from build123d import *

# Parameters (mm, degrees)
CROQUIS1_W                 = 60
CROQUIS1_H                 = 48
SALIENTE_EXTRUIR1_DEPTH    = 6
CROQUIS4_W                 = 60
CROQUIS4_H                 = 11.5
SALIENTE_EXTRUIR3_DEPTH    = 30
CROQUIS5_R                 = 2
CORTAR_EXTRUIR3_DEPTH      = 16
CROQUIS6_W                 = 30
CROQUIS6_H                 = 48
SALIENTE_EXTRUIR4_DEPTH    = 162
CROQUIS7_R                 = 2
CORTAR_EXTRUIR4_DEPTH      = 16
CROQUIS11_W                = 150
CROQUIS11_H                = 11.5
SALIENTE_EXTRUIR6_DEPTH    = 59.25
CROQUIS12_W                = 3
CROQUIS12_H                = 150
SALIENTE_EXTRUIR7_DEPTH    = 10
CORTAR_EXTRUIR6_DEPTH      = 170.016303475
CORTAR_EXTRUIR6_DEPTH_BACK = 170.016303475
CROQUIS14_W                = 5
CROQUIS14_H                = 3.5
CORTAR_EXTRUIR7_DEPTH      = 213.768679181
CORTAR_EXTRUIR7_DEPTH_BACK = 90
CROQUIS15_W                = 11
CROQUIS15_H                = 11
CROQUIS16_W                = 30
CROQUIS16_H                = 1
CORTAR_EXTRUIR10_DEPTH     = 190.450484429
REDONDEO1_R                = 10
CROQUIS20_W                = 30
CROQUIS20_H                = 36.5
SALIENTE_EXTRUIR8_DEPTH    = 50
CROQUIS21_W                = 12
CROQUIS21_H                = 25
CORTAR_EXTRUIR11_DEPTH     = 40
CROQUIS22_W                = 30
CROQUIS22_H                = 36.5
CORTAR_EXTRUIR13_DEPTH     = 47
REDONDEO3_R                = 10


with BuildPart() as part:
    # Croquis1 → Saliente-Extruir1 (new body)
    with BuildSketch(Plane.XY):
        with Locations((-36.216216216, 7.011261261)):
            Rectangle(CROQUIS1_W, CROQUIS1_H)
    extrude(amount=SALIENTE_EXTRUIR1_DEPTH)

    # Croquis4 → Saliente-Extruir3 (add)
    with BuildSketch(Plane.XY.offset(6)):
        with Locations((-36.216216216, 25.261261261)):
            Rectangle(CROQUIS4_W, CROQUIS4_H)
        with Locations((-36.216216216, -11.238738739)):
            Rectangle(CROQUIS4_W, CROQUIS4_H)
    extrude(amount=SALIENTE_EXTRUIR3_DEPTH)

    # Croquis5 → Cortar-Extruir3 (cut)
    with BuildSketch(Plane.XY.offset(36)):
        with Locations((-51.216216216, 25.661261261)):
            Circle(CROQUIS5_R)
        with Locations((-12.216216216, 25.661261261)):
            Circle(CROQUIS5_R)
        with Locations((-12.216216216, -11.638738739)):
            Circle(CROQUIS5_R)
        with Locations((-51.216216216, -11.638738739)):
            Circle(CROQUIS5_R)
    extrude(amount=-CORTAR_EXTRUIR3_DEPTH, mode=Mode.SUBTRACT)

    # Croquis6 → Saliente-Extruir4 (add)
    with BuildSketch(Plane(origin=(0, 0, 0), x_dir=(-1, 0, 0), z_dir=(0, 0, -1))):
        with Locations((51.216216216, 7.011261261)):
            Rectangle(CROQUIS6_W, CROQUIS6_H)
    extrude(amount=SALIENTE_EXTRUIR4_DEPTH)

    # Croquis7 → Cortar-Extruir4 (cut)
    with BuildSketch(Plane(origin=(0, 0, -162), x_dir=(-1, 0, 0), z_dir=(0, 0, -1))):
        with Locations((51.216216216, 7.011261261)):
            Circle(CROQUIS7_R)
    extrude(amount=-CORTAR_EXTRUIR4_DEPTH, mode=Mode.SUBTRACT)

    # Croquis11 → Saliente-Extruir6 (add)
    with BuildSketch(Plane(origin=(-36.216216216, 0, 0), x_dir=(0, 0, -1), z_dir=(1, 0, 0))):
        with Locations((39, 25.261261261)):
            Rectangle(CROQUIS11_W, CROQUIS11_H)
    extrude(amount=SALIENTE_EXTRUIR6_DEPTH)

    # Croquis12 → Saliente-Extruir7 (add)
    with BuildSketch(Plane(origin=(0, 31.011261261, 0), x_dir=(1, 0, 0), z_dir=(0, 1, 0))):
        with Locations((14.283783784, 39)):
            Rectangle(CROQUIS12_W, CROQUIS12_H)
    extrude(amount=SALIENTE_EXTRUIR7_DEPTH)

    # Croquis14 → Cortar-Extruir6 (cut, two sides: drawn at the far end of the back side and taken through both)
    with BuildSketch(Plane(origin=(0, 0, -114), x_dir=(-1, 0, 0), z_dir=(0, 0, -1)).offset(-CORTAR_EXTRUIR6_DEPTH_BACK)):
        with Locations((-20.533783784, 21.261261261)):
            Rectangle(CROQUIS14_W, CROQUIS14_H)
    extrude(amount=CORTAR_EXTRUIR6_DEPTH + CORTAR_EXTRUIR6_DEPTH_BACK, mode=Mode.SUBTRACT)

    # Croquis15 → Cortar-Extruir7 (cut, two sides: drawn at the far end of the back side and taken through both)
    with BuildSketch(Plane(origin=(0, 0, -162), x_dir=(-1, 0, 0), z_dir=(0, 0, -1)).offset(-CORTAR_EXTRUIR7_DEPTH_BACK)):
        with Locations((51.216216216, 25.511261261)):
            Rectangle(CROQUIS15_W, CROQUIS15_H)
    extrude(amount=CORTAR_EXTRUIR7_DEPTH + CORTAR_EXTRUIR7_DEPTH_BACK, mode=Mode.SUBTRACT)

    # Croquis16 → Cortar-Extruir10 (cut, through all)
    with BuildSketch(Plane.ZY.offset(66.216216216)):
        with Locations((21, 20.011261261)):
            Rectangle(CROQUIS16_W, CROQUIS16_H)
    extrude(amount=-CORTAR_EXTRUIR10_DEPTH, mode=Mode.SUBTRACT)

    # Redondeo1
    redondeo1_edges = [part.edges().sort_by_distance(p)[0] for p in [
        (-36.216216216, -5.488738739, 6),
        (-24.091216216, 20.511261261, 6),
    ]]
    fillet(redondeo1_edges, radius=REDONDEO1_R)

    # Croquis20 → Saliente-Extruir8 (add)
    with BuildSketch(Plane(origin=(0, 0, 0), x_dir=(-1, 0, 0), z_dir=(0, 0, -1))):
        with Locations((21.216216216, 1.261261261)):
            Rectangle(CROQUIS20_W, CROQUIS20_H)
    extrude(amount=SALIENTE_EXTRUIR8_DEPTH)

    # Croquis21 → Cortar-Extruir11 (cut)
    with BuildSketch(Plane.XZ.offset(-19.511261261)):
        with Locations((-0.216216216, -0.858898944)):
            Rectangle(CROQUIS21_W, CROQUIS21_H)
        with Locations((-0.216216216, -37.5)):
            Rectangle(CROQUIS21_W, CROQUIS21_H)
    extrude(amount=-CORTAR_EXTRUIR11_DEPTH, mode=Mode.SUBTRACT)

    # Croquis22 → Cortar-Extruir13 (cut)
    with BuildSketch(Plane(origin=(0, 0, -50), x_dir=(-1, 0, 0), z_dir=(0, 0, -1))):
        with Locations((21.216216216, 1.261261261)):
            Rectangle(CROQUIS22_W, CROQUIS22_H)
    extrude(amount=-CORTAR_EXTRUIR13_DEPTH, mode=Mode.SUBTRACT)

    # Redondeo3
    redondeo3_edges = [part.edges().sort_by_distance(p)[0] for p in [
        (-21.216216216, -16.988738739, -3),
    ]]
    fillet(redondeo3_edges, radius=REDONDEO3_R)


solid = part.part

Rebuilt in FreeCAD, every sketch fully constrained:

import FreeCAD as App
import Part
import Sketcher
Q = App.Units.Quantity


def edges_at(feature, points):
    """Names of the edges that pass closest to the given points."""
    edges = feature.Shape.Edges
    near = lambda p: min(range(len(edges)), key=lambda i: edges[i].distToShape(Part.Vertex(*p))[0])
    return sorted({f"Edge{near(p) + 1}" for p in points})


def add_polygon(sketch, points):
    """Adds a closed chain of lines whose ends are joined by coincident constraints."""
    first, n = sketch.GeometryCount, len(points)
    for a, b in zip(points, points[1:] + points[:1]):
        sketch.addGeometry(Part.LineSegment(App.Vector(*a, 0), App.Vector(*b, 0)), False)
    for i in range(n):
        sketch.addConstraint(Sketcher.Constraint("Coincident", first + i, 2, first + (i + 1) % n, 1))

doc = App.newDocument("Part")
params = doc.addObject("Spreadsheet::Sheet", "Params")
for row, (alias, value) in enumerate([
    ("sketch1_width", "60 mm"),
    ("sketch1_height", "48 mm"),
    ("pad1_length", "6 mm"),
    ("sketch2_width", "60 mm"),
    ("sketch2_height", "11.5 mm"),
    ("pad2_length", "30 mm"),
    ("sketch3_diameter", "4 mm"),
    ("pocket1_length", "16 mm"),
    ("sketch4_width", "30 mm"),
    ("sketch4_height", "48 mm"),
    ("pad3_length", "162 mm"),
    ("sketch5_diameter", "4 mm"),
    ("pocket2_length", "16 mm"),
    ("sketch6_height", "150 mm"),
    ("sketch6_width", "11.5 mm"),
    ("pad4_length", "59.25 mm"),
    ("sketch7_width", "3 mm"),
    ("sketch7_height", "150 mm"),
    ("pad5_length", "10 mm"),
    ("sketch8_width", "5 mm"),
    ("sketch8_height", "3.5 mm"),
    ("sketch9_width", "11 mm"),
    ("pocket4_length", "213.768679 mm"),
    ("pocket4_length2", "90 mm"),
    ("sketch10_width", "1 mm"),
    ("sketch10_height", "30 mm"),
    ("fillet_radius", "10 mm"),
    ("sketch11_width", "30 mm"),
    ("sketch11_height", "36.5 mm"),
    ("pad6_length", "50 mm"),
    ("sketch12_width", "12 mm"),
    ("sketch12_height", "25 mm"),
    ("pocket6_length", "40 mm"),
    ("sketch13_width", "30 mm"),
    ("sketch13_height", "36.5 mm"),
    ("pocket7_length", "47 mm"),
    ("fillet2_radius", "10 mm"),
], start=1):
    params.set(f"A{row}", alias)
    params.set(f"B{row}", "=" + value)
    params.setAlias(f"B{row}", alias)

body = doc.addObject("PartDesign::Body", "Body")

# Sketch on XY plane
sketch1 = body.newObject("Sketcher::SketchObject", "Sketch")
sketch1.AttachmentSupport = (doc.getObject("XY_Plane"), [""])
sketch1.MapMode = "FlatFace"
add_polygon(sketch1, [(-66.216216, 31.011261), (-66.216216, -16.988739), (-6.216216, -16.988739), (-6.216216, 31.011261)])  # lines 0-3
sketch1.addConstraint(Sketcher.Constraint("Vertical", 0))
sketch1.addConstraint(Sketcher.Constraint("Horizontal", 1))
sketch1.addConstraint(Sketcher.Constraint("Vertical", 2))
sketch1.addConstraint(Sketcher.Constraint("Horizontal", 3))
sketch1.addConstraint(Sketcher.Constraint("DistanceX", 1, 1, 1, 2, Q("60 mm")))
sketch1.addConstraint(Sketcher.Constraint("DistanceY", 0, 2, 0, 1, Q("48 mm")))
sketch1.addConstraint(Sketcher.Constraint("DistanceY", 0, 2, -1, 1, Q("16.988739 mm")))
sketch1.addConstraint(Sketcher.Constraint("DistanceX", 0, 2, -1, 1, Q("66.216216 mm")))
sketch1.setExpression("Constraints[8]", "Params.sketch1_width")
sketch1.setExpression("Constraints[9]", "Params.sketch1_height")
pad1 = body.newObject("PartDesign::Pad", "Pad")
pad1.Profile = sketch1
pad1.setExpression("Length", "Params.pad1_length")

# Sketch on XY plane
sketch2 = body.newObject("Sketcher::SketchObject", "Sketch001")
sketch2.AttachmentSupport = (doc.getObject("XY_Plane"), [""])
sketch2.MapMode = "FlatFace"
sketch2.AttachmentOffset = App.Placement(App.Vector(0, 0, 6), App.Rotation())
add_polygon(sketch2, [(-66.216216, 31.011261), (-66.216216, 19.511261), (-6.216216, 19.511261), (-6.216216, 31.011261)])  # lines 0-3
add_polygon(sketch2, [(-66.216216, -5.488739), (-66.216216, -16.988739), (-6.216216, -16.988739), (-6.216216, -5.488739)])  # lines 4-7
sketch2.addConstraint(Sketcher.Constraint("Vertical", 0))
sketch2.addConstraint(Sketcher.Constraint("Horizontal", 1))
sketch2.addConstraint(Sketcher.Constraint("Vertical", 2))
sketch2.addConstraint(Sketcher.Constraint("Horizontal", 3))
sketch2.addConstraint(Sketcher.Constraint("Vertical", 4))
sketch2.addConstraint(Sketcher.Constraint("Horizontal", 5))
sketch2.addConstraint(Sketcher.Constraint("Vertical", 6))
sketch2.addConstraint(Sketcher.Constraint("Horizontal", 7))
sketch2.addConstraint(Sketcher.Constraint("Vertical", 3, 2, 4, 2))
sketch2.addConstraint(Sketcher.Constraint("Vertical", 2, 2, 5, 2))
sketch2.addConstraint(Sketcher.Constraint("Equal", 2, 4))
sketch2.addConstraint(Sketcher.Constraint("DistanceX", 1, 1, 1, 2, Q("60 mm")))
sketch2.addConstraint(Sketcher.Constraint("DistanceY", 0, 2, 0, 1, Q("11.5 mm")))
sketch2.addConstraint(Sketcher.Constraint("DistanceY", 4, 2, 3, 2, Q("48 mm")))
sketch2.addConstraint(Sketcher.Constraint("DistanceY", -1, 1, 0, 2, Q("19.511261 mm")))
sketch2.addConstraint(Sketcher.Constraint("DistanceX", 0, 2, -1, 1, Q("66.216216 mm")))
sketch2.setExpression("Constraints[19]", "Params.sketch2_width")
sketch2.setExpression("Constraints[20]", "Params.sketch2_height")
pad2 = body.newObject("PartDesign::Pad", "Pad001")
pad2.Profile = sketch2
pad2.setExpression("Length", "Params.pad2_length")

# Sketch on XY plane
sketch3 = body.newObject("Sketcher::SketchObject", "Sketch002")
sketch3.AttachmentSupport = (doc.getObject("XY_Plane"), [""])
sketch3.MapMode = "FlatFace"
sketch3.AttachmentOffset = App.Placement(App.Vector(0, 0, 36), App.Rotation())
sketch3.addGeometry(Part.Circle(App.Vector(-51.216216, 25.661261, 0), App.Vector(0, 0, 1), 2), False)
sketch3.addGeometry(Part.Circle(App.Vector(-12.216216, 25.661261, 0), App.Vector(0, 0, 1), 2), False)
sketch3.addGeometry(Part.Circle(App.Vector(-12.216216, -11.638739, 0), App.Vector(0, 0, 1), 2), False)
sketch3.addGeometry(Part.Circle(App.Vector(-51.216216, -11.638739, 0), App.Vector(0, 0, 1), 2), False)
sketch3.addConstraint(Sketcher.Constraint("Equal", 0, 1))
sketch3.addConstraint(Sketcher.Constraint("Equal", 1, 2))
sketch3.addConstraint(Sketcher.Constraint("Equal", 2, 3))
sketch3.addConstraint(Sketcher.Constraint("Horizontal", 0, 3, 1, 3))
sketch3.addConstraint(Sketcher.Constraint("Horizontal", 2, 3, 3, 3))
sketch3.addConstraint(Sketcher.Constraint("Vertical", 1, 3, 2, 3))
sketch3.addConstraint(Sketcher.Constraint("Vertical", 0, 3, 3, 3))
sketch3.addConstraint(Sketcher.Constraint("Diameter", 0, Q("4 mm")))
sketch3.addConstraint(Sketcher.Constraint("DistanceX", 0, 3, 1, 3, Q("39 mm")))
sketch3.addConstraint(Sketcher.Constraint("DistanceY", 2, 3, 1, 3, Q("37.3 mm")))
sketch3.addConstraint(Sketcher.Constraint("DistanceY", -1, 1, 0, 3, Q("25.661261 mm")))
sketch3.addConstraint(Sketcher.Constraint("DistanceX", 0, 3, -1, 1, Q("51.216216 mm")))
sketch3.setExpression("Constraints[7]", "Params.sketch3_diameter")
pocket1 = body.newObject("PartDesign::Pocket", "Pocket")
pocket1.Profile = sketch3
pocket1.setExpression("Length", "Params.pocket1_length")

# Sketch on XY plane
sketch4 = body.newObject("Sketcher::SketchObject", "Sketch003")
sketch4.AttachmentSupport = (doc.getObject("XY_Plane"), [""])
sketch4.MapMode = "FlatFace"
add_polygon(sketch4, [(-36.216216, 31.011261), (-36.216216, -16.988739), (-66.216216, -16.988739), (-66.216216, 31.011261)])  # lines 0-3
sketch4.addConstraint(Sketcher.Constraint("Vertical", 0))
sketch4.addConstraint(Sketcher.Constraint("Horizontal", 1))
sketch4.addConstraint(Sketcher.Constraint("Vertical", 2))
sketch4.addConstraint(Sketcher.Constraint("Horizontal", 3))
sketch4.addConstraint(Sketcher.Constraint("DistanceX", 1, 2, 1, 1, Q("30 mm")))
sketch4.addConstraint(Sketcher.Constraint("DistanceY", 0, 2, 0, 1, Q("48 mm")))
sketch4.addConstraint(Sketcher.Constraint("DistanceY", 0, 2, -1, 1, Q("16.988739 mm")))
sketch4.addConstraint(Sketcher.Constraint("DistanceX", 0, 2, -1, 1, Q("36.216216 mm")))
sketch4.setExpression("Constraints[8]", "Params.sketch4_width")
sketch4.setExpression("Constraints[9]", "Params.sketch4_height")
pad3 = body.newObject("PartDesign::Pad", "Pad002")
pad3.Profile = sketch4
pad3.setExpression("Length", "Params.pad3_length")
pad3.Reversed = True

# Sketch on XY plane
sketch5 = body.newObject("Sketcher::SketchObject", "Sketch004")
sketch5.AttachmentSupport = (doc.getObject("XY_Plane"), [""])
sketch5.MapMode = "FlatFace"
sketch5.AttachmentOffset = App.Placement(App.Vector(0, 0, -162), App.Rotation())
sketch5.addGeometry(Part.Circle(App.Vector(-51.216216, 7.011261, 0), App.Vector(0, 0, 1), 2), False)
sketch5.addConstraint(Sketcher.Constraint("Diameter", 0, Q("4 mm")))
sketch5.addConstraint(Sketcher.Constraint("DistanceY", -1, 1, 0, 3, Q("7.011261 mm")))
sketch5.addConstraint(Sketcher.Constraint("DistanceX", 0, 3, -1, 1, Q("51.216216 mm")))
sketch5.setExpression("Constraints[0]", "Params.sketch5_diameter")
pocket2 = body.newObject("PartDesign::Pocket", "Pocket001")
pocket2.Profile = sketch5
pocket2.setExpression("Length", "Params.pocket2_length")
pocket2.Reversed = True

# Sketch on YZ plane
sketch6 = body.newObject("Sketcher::SketchObject", "Sketch005")
sketch6.AttachmentSupport = (doc.getObject("YZ_Plane"), [""])
sketch6.MapMode = "FlatFace"
sketch6.AttachmentOffset = App.Placement(App.Vector(0, 0, -36.216216), App.Rotation())
add_polygon(sketch6, [(31.011261, 36), (19.511261, 36), (19.511261, -114), (31.011261, -114)])  # lines 0-3
sketch6.addConstraint(Sketcher.Constraint("Horizontal", 0))
sketch6.addConstraint(Sketcher.Constraint("Vertical", 1))
sketch6.addConstraint(Sketcher.Constraint("Horizontal", 2))
sketch6.addConstraint(Sketcher.Constraint("Vertical", 3))
sketch6.addConstraint(Sketcher.Constraint("DistanceY", 1, 2, 1, 1, Q("150 mm")))
sketch6.addConstraint(Sketcher.Constraint("DistanceX", 0, 2, 0, 1, Q("11.5 mm")))
sketch6.addConstraint(Sketcher.Constraint("DistanceY", -1, 1, 0, 2, Q("36 mm")))
sketch6.addConstraint(Sketcher.Constraint("DistanceX", -1, 1, 0, 2, Q("19.511261 mm")))
sketch6.setExpression("Constraints[8]", "Params.sketch6_height")
sketch6.setExpression("Constraints[9]", "Params.sketch6_width")
pad4 = body.newObject("PartDesign::Pad", "Pad003")
pad4.Profile = sketch6
pad4.setExpression("Length", "Params.pad4_length")

# Sketch on XZ plane
sketch7 = body.newObject("Sketcher::SketchObject", "Sketch006")
sketch7.AttachmentSupport = (doc.getObject("XZ_Plane"), [""])
sketch7.MapMode = "FlatFace"
sketch7.AttachmentOffset = App.Placement(App.Vector(0, 0, -31.011261), App.Rotation())
add_polygon(sketch7, [(12.783784, -114), (12.783784, 36), (15.783784, 36), (15.783784, -114)])  # lines 0-3
sketch7.addConstraint(Sketcher.Constraint("Vertical", 0))
sketch7.addConstraint(Sketcher.Constraint("Horizontal", 1))
sketch7.addConstraint(Sketcher.Constraint("Vertical", 2))
sketch7.addConstraint(Sketcher.Constraint("Horizontal", 3))
sketch7.addConstraint(Sketcher.Constraint("DistanceX", 1, 1, 1, 2, Q("3 mm")))
sketch7.addConstraint(Sketcher.Constraint("DistanceY", 0, 1, 0, 2, Q("150 mm")))
sketch7.addConstraint(Sketcher.Constraint("DistanceY", -1, 1, 0, 2, Q("36 mm")))
sketch7.addConstraint(Sketcher.Constraint("DistanceX", -1, 1, 0, 2, Q("12.783784 mm")))
sketch7.setExpression("Constraints[8]", "Params.sketch7_width")
sketch7.setExpression("Constraints[9]", "Params.sketch7_height")
pad5 = body.newObject("PartDesign::Pad", "Pad004")
pad5.Profile = sketch7
pad5.setExpression("Length", "Params.pad5_length")
pad5.Reversed = True

# Sketch on XY plane
sketch8 = body.newObject("Sketcher::SketchObject", "Sketch007")
sketch8.AttachmentSupport = (doc.getObject("XY_Plane"), [""])
sketch8.MapMode = "FlatFace"
sketch8.AttachmentOffset = App.Placement(App.Vector(0, 0, -114), App.Rotation())
add_polygon(sketch8, [(23.033784, 23.011261), (23.033784, 19.511261), (18.033784, 19.511261), (18.033784, 23.011261)])  # lines 0-3
sketch8.addConstraint(Sketcher.Constraint("Vertical", 0))
sketch8.addConstraint(Sketcher.Constraint("Horizontal", 1))
sketch8.addConstraint(Sketcher.Constraint("Vertical", 2))
sketch8.addConstraint(Sketcher.Constraint("Horizontal", 3))
sketch8.addConstraint(Sketcher.Constraint("DistanceX", 1, 2, 1, 1, Q("5 mm")))
sketch8.addConstraint(Sketcher.Constraint("DistanceY", 0, 2, 0, 1, Q("3.5 mm")))
sketch8.addConstraint(Sketcher.Constraint("DistanceY", -1, 1, 0, 2, Q("19.511261 mm")))
sketch8.addConstraint(Sketcher.Constraint("DistanceX", -1, 1, 0, 2, Q("23.033784 mm")))
sketch8.setExpression("Constraints[8]", "Params.sketch8_width")
sketch8.setExpression("Constraints[9]", "Params.sketch8_height")
pocket3 = body.newObject("PartDesign::Pocket", "Pocket002")
pocket3.Profile = sketch8
pocket3.Type = "ThroughAll"
pocket3.Midplane = True

# Sketch on XY plane
sketch9 = body.newObject("Sketcher::SketchObject", "Sketch008")
sketch9.AttachmentSupport = (doc.getObject("XY_Plane"), [""])
sketch9.MapMode = "FlatFace"
sketch9.AttachmentOffset = App.Placement(App.Vector(0, 0, -162), App.Rotation())
add_polygon(sketch9, [(-45.716216, 31.011261), (-45.716216, 20.011261), (-56.716216, 20.011261), (-56.716216, 31.011261)])  # lines 0-3
sketch9.addConstraint(Sketcher.Constraint("Vertical", 0))
sketch9.addConstraint(Sketcher.Constraint("Horizontal", 1))
sketch9.addConstraint(Sketcher.Constraint("Vertical", 2))
sketch9.addConstraint(Sketcher.Constraint("Horizontal", 3))
sketch9.addConstraint(Sketcher.Constraint("Equal", 3, 0))
sketch9.addConstraint(Sketcher.Constraint("DistanceX", 1, 2, 1, 1, Q("11 mm")))
sketch9.addConstraint(Sketcher.Constraint("DistanceY", -1, 1, 0, 2, Q("20.011261 mm")))
sketch9.addConstraint(Sketcher.Constraint("DistanceX", 0, 2, -1, 1, Q("45.716216 mm")))
sketch9.setExpression("Constraints[9]", "Params.sketch9_width")
pocket4 = body.newObject("PartDesign::Pocket", "Pocket003")
pocket4.Profile = sketch9
pocket4.Type = "TwoLengths"
pocket4.setExpression("Length", "Params.pocket4_length")
pocket4.setExpression("Length2", "Params.pocket4_length2")

# Sketch on YZ plane
sketch10 = body.newObject("Sketcher::SketchObject", "Sketch009")
sketch10.AttachmentSupport = (doc.getObject("YZ_Plane"), [""])
sketch10.MapMode = "FlatFace"
sketch10.AttachmentOffset = App.Placement(App.Vector(0, 0, -66.216216), App.Rotation())
add_polygon(sketch10, [(20.511261, 6), (19.511261, 6), (19.511261, 36), (20.511261, 36)])  # lines 0-3
sketch10.addConstraint(Sketcher.Constraint("Horizontal", 0))
sketch10.addConstraint(Sketcher.Constraint("Vertical", 1))
sketch10.addConstraint(Sketcher.Constraint("Horizontal", 2))
sketch10.addConstraint(Sketcher.Constraint("Vertical", 3))
sketch10.addConstraint(Sketcher.Constraint("DistanceX", 0, 2, 0, 1, Q("1 mm")))
sketch10.addConstraint(Sketcher.Constraint("DistanceY", 1, 1, 1, 2, Q("30 mm")))
sketch10.addConstraint(Sketcher.Constraint("DistanceY", -1, 1, 0, 2, Q("6 mm")))
sketch10.addConstraint(Sketcher.Constraint("DistanceX", -1, 1, 0, 2, Q("19.511261 mm")))
sketch10.setExpression("Constraints[8]", "Params.sketch10_width")
sketch10.setExpression("Constraints[9]", "Params.sketch10_height")
pocket5 = body.newObject("PartDesign::Pocket", "Pocket004")
pocket5.Profile = sketch10
pocket5.Type = "ThroughAll"
pocket5.Reversed = True
doc.recompute()

fillet = body.newObject("PartDesign::Fillet", "Fillet")
fillet.Base = (pocket5, edges_at(pocket5, [(-36.216, -5.489, 6), (-24.091, 20.511, 6)]))
fillet.setExpression("Radius", "Params.fillet_radius")

# Sketch on XY plane
sketch11 = body.newObject("Sketcher::SketchObject", "Sketch010")
sketch11.AttachmentSupport = (doc.getObject("XY_Plane"), [""])
sketch11.MapMode = "FlatFace"
add_polygon(sketch11, [(-6.216216, 19.511261), (-6.216216, -16.988739), (-36.216216, -16.988739), (-36.216216, 19.511261)])  # lines 0-3
sketch11.addConstraint(Sketcher.Constraint("Vertical", 0))
sketch11.addConstraint(Sketcher.Constraint("Horizontal", 1))
sketch11.addConstraint(Sketcher.Constraint("Vertical", 2))
sketch11.addConstraint(Sketcher.Constraint("Horizontal", 3))
sketch11.addConstraint(Sketcher.Constraint("DistanceX", 1, 2, 1, 1, Q("30 mm")))
sketch11.addConstraint(Sketcher.Constraint("DistanceY", 0, 2, 0, 1, Q("36.5 mm")))
sketch11.addConstraint(Sketcher.Constraint("DistanceY", 0, 2, -1, 1, Q("16.988739 mm")))
sketch11.addConstraint(Sketcher.Constraint("DistanceX", 0, 2, -1, 1, Q("6.216216 mm")))
sketch11.setExpression("Constraints[8]", "Params.sketch11_width")
sketch11.setExpression("Constraints[9]", "Params.sketch11_height")
pad6 = body.newObject("PartDesign::Pad", "Pad005")
pad6.Profile = sketch11
pad6.setExpression("Length", "Params.pad6_length")
pad6.Reversed = True

# Sketch on XZ plane
sketch12 = body.newObject("Sketcher::SketchObject", "Sketch011")
sketch12.AttachmentSupport = (doc.getObject("XZ_Plane"), [""])
sketch12.MapMode = "FlatFace"
sketch12.AttachmentOffset = App.Placement(App.Vector(0, 0, -19.511261), App.Rotation())
add_polygon(sketch12, [(-6.216216, 11.641101), (-6.216216, -13.358899), (5.783784, -13.358899), (5.783784, 11.641101)])  # lines 0-3
add_polygon(sketch12, [(-6.216216, -25), (-6.216216, -50), (5.783784, -50), (5.783784, -25)])  # lines 4-7
sketch12.addConstraint(Sketcher.Constraint("Vertical", 0))
sketch12.addConstraint(Sketcher.Constraint("Horizontal", 1))
sketch12.addConstraint(Sketcher.Constraint("Vertical", 2))
sketch12.addConstraint(Sketcher.Constraint("Horizontal", 3))
sketch12.addConstraint(Sketcher.Constraint("Vertical", 4))
sketch12.addConstraint(Sketcher.Constraint("Horizontal", 5))
sketch12.addConstraint(Sketcher.Constraint("Vertical", 6))
sketch12.addConstraint(Sketcher.Constraint("Horizontal", 7))
sketch12.addConstraint(Sketcher.Constraint("Vertical", 3, 2, 4, 2))
sketch12.addConstraint(Sketcher.Constraint("Vertical", 2, 2, 5, 2))
sketch12.addConstraint(Sketcher.Constraint("Equal", 2, 4))
sketch12.addConstraint(Sketcher.Constraint("DistanceX", 1, 1, 1, 2, Q("12 mm")))
sketch12.addConstraint(Sketcher.Constraint("DistanceY", 0, 2, 0, 1, Q("25 mm")))
sketch12.addConstraint(Sketcher.Constraint("DistanceY", 4, 2, -1, 1, Q("50 mm")))
sketch12.addConstraint(Sketcher.Constraint("DistanceY", 0, 2, -1, 1, Q("13.358899 mm")))
sketch12.addConstraint(Sketcher.Constraint("DistanceX", 0, 2, -1, 1, Q("6.216216 mm")))
sketch12.setExpression("Constraints[19]", "Params.sketch12_width")
sketch12.setExpression("Constraints[20]", "Params.sketch12_height")
pocket6 = body.newObject("PartDesign::Pocket", "Pocket005")
pocket6.Profile = sketch12
pocket6.setExpression("Length", "Params.pocket6_length")

# Sketch on XY plane
sketch13 = body.newObject("Sketcher::SketchObject", "Sketch012")
sketch13.AttachmentSupport = (doc.getObject("XY_Plane"), [""])
sketch13.MapMode = "FlatFace"
sketch13.AttachmentOffset = App.Placement(App.Vector(0, 0, -50), App.Rotation())
add_polygon(sketch13, [(-6.216216, 19.511261), (-6.216216, -16.988739), (-36.216216, -16.988739), (-36.216216, 19.511261)])  # lines 0-3
sketch13.addConstraint(Sketcher.Constraint("Vertical", 0))
sketch13.addConstraint(Sketcher.Constraint("Horizontal", 1))
sketch13.addConstraint(Sketcher.Constraint("Vertical", 2))
sketch13.addConstraint(Sketcher.Constraint("Horizontal", 3))
sketch13.addConstraint(Sketcher.Constraint("DistanceX", 1, 2, 1, 1, Q("30 mm")))
sketch13.addConstraint(Sketcher.Constraint("DistanceY", 0, 2, 0, 1, Q("36.5 mm")))
sketch13.addConstraint(Sketcher.Constraint("DistanceY", 0, 2, -1, 1, Q("16.988739 mm")))
sketch13.addConstraint(Sketcher.Constraint("DistanceX", 0, 2, -1, 1, Q("6.216216 mm")))
sketch13.setExpression("Constraints[8]", "Params.sketch13_width")
sketch13.setExpression("Constraints[9]", "Params.sketch13_height")
pocket7 = body.newObject("PartDesign::Pocket", "Pocket006")
pocket7.Profile = sketch13
pocket7.setExpression("Length", "Params.pocket7_length")
pocket7.Reversed = True
doc.recompute()

fillet2 = body.newObject("PartDesign::Fillet", "Fillet001")
fillet2.Base = (pocket7, edges_at(pocket7, [(-21.216, -16.989, -3)]))
fillet2.setExpression("Radius", "Params.fillet2_radius")

doc.recompute()
